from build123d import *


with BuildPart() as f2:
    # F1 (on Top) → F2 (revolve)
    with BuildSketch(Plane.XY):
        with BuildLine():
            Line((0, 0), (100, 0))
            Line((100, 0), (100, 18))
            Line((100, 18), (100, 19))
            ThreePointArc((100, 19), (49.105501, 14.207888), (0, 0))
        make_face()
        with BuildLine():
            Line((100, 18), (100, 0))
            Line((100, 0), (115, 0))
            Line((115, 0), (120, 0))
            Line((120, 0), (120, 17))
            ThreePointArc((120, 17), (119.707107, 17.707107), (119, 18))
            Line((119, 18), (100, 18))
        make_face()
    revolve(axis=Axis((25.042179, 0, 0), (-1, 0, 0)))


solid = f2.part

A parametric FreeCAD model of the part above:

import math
import FreeCAD as App
import Part
import Sketcher

V = App.Vector
Q = App.Units.Quantity

doc = App.newDocument("Part")
body = doc.addObject("PartDesign::Body", "Body")

# Sketch on XY plane
sketch1 = doc.addObject("Sketcher::SketchObject", "Sketch")
body.addObject(sketch1)
sketch1.AttachmentSupport = (doc.XY_Plane, [""])
sketch1.MapMode = "FlatFace"
sketch1.addGeometry(Part.LineSegment(V(0, 0, 0), V(120, 0, 0)), False)
sketch1.addGeometry(Part.LineSegment(V(120, 0, 0), V(120, 17, 0)), False)
sketch1.addGeometry(Part.ArcOfCircle(Part.Circle(V(119.000001, 17.000001, 0), V(0, 0, 1), 0.999999), math.radians(-0.000043), math.radians(90.000043)), False)
sketch1.addGeometry(Part.LineSegment(V(119, 18, 0), V(100, 18, 0)), False)
sketch1.addGeometry(Part.LineSegment(V(100, 18, 0), V(100, 19, 0)), False)
sketch1.addGeometry(Part.ArcOfCircle(Part.Circle(V(99.999999, -253.657892, 0), V(0, 0, 1), 272.657892), math.radians(90), math.radians(111.515934)), False)
sketch1.addConstraint(Sketcher.Constraint("Coincident", 0, 2, 1, 1))
sketch1.addConstraint(Sketcher.Constraint("Tangent", 1, 2, 2, 1))
sketch1.addConstraint(Sketcher.Constraint("Tangent", 2, 2, 3, 1))
sketch1.addConstraint(Sketcher.Constraint("Coincident", 3, 2, 4, 1))
sketch1.addConstraint(Sketcher.Constraint("Coincident", 4, 2, 5, 1))
sketch1.addConstraint(Sketcher.Constraint("Coincident", 5, 2, 0, 1))
sketch1.addConstraint(Sketcher.Constraint("Horizontal", 0))
sketch1.addConstraint(Sketcher.Constraint("Vertical", 1))
sketch1.addConstraint(Sketcher.Constraint("Horizontal", 3))
sketch1.addConstraint(Sketcher.Constraint("Vertical", 4))
sketch1.addConstraint(Sketcher.Constraint("Coincident", 5, 2, -1, 1))
sketch1.addConstraint(Sketcher.Constraint("Vertical", 5, 3, 3, 2))
sketch1.addConstraint(Sketcher.Constraint("Radius", 2, Q("0.999999 mm")))
sketch1.addConstraint(Sketcher.Constraint("DistanceX", 0, 1, 0, 2, Q("120 mm")))
sketch1.addConstraint(Sketcher.Constraint("DistanceX", 3, 2, 3, 1, Q("19 mm")))
sketch1.addConstraint(Sketcher.Constraint("DistanceY", 1, 1, 1, 2, Q("17 mm")))
sketch1.addConstraint(Sketcher.Constraint("DistanceY", 4, 1, 4, 2, Q("1 mm")))
revolution = doc.addObject("PartDesign::Revolution", "Revolution")
body.addObject(revolution)
revolution.Profile = sketch1
revolution.ReferenceAxis = (sketch1, ["H_Axis"])
revolution.Angle = 360

doc.recompute()
